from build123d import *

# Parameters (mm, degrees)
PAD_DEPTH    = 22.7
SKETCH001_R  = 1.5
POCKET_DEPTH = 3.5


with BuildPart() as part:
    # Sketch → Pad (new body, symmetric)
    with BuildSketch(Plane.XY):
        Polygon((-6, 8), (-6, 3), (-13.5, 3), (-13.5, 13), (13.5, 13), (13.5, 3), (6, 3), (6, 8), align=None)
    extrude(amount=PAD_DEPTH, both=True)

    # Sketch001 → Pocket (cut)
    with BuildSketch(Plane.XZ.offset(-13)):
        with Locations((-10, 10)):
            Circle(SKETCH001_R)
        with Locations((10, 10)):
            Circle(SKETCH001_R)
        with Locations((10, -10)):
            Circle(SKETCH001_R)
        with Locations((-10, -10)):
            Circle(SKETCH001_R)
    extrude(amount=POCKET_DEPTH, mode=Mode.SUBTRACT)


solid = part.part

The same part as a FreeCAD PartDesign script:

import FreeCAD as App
import Part
import Sketcher

V = App.Vector
Q = App.Units.Quantity

doc = App.newDocument("Part")
body = doc.addObject("PartDesign::Body", "Body")

sketch1 = body.newObject("Sketcher::SketchObject", "Sketch")
sketch1.AttachmentSupport = (doc.getObject("XY_Plane"), [""])
sketch1.MapMode = "FlatFace"
sketch1.addGeometry(Part.LineSegment(V(-6, 3, 0), V(-6, 8, 0)), False)
sketch1.addGeometry(Part.LineSegment(V(-6, 8, 0), V(6, 8, 0)), False)
sketch1.addGeometry(Part.LineSegment(V(6, 8, 0), V(6, 3, 0)), False)
sketch1.addGeometry(Part.LineSegment(V(6, 3, 0), V(13.5, 3, 0)), False)
sketch1.addGeometry(Part.LineSegment(V(13.5, 3, 0), V(13.5, 13, 0)), False)
sketch1.addGeometry(Part.LineSegment(V(13.5, 13, 0), V(-13.5, 13, 0)), False)
sketch1.addGeometry(Part.LineSegment(V(-13.5, 13, 0), V(-13.5, 3, 0)), False)
sketch1.addGeometry(Part.LineSegment(V(-13.5, 3, 0), V(-6, 3, 0)), False)
sketch1.addConstraint(Sketcher.Constraint("Coincident", 0, 2, 1, 1))
sketch1.addConstraint(Sketcher.Constraint("Coincident", 1, 2, 2, 1))
sketch1.addConstraint(Sketcher.Constraint("Coincident", 2, 2, 3, 1))
sketch1.addConstraint(Sketcher.Constraint("Coincident", 3, 2, 4, 1))
sketch1.addConstraint(Sketcher.Constraint("Coincident", 4, 2, 5, 1))
sketch1.addConstraint(Sketcher.Constraint("Coincident", 5, 2, 6, 1))
sketch1.addConstraint(Sketcher.Constraint("Coincident", 6, 2, 7, 1))
sketch1.addConstraint(Sketcher.Constraint("Coincident", 7, 2, 0, 1))
sketch1.addConstraint(Sketcher.Constraint("Vertical", 0))
sketch1.addConstraint(Sketcher.Constraint("Horizontal", 1))
sketch1.addConstraint(Sketcher.Constraint("Vertical", 2))
sketch1.addConstraint(Sketcher.Constraint("Horizontal", 3))
sketch1.addConstraint(Sketcher.Constraint("Vertical", 4))
sketch1.addConstraint(Sketcher.Constraint("Horizontal", 5))
sketch1.addConstraint(Sketcher.Constraint("Vertical", 6))
sketch1.addConstraint(Sketcher.Constraint("Horizontal", 7))
sketch1.addConstraint(Sketcher.Constraint("Symmetric", 3, 2, 6, 2, -2))
sketch1.addConstraint(Sketcher.Constraint("Equal", 3, 7))
sketch1.addConstraint(Sketcher.Constraint("DistanceX", 1, 1, 1, 2, Q("12 mm")))
sketch1.addConstraint(Sketcher.Constraint("DistanceX", 5, 2, 5, 1, Q("27 mm")))
sketch1.addConstraint(Sketcher.Constraint("DistanceY", 0, 1, 0, 2, Q("5 mm")))
sketch1.addConstraint(Sketcher.Constraint("DistanceY", 4, 1, 4, 2, Q("10 mm")))
sketch1.addConstraint(Sketcher.Constraint("DistanceY", -1, 1, 0, 2, Q("8 mm")))
pad1 = body.newObject("PartDesign::Pad", "Pad")
pad1.Profile = sketch1
pad1.Length = 45.4
pad1.Midplane = True

sketch2 = body.newObject("Sketcher::SketchObject", "Sketch001")
sketch2.AttachmentSupport = (doc.getObject("XZ_Plane"), [""])
sketch2.MapMode = "FlatFace"
sketch2.AttachmentOffset = App.Placement(V(0, 0, -13), App.Rotation())
sketch2.addGeometry(Part.Circle(V(-10, 10, 0), V(0, 0, 1), 1.5), False)
sketch2.addGeometry(Part.Circle(V(10, 10, 0), V(0, 0, 1), 1.5), False)
sketch2.addGeometry(Part.Circle(V(10, -10, 0), V(0, 0, 1), 1.5), False)
sketch2.addGeometry(Part.Circle(V(-10, -10, 0), V(0, 0, 1), 1.5), False)
sketch2.addConstraint(Sketcher.Constraint("Equal", 0, 1))
sketch2.addConstraint(Sketcher.Constraint("Equal", 1, 2))
sketch2.addConstraint(Sketcher.Constraint("Equal", 2, 3))
sketch2.addConstraint(Sketcher.Constraint("Symmetric", 0, 3, 2, 3, -1, 1))
sketch2.addConstraint(Sketcher.Constraint("Symmetric", 1, 3, 3, 3, -1, 1))
sketch2.addConstraint(Sketcher.Constraint("Symmetric", 0, 3, 1, 3, -2))
sketch2.addConstraint(Sketcher.Constraint("Diameter", 0, Q("3 mm")))
sketch2.addConstraint(Sketcher.Constraint("DistanceX", 0, 3, -1, 1, Q("10 mm")))
sketch2.addConstraint(Sketcher.Constraint("DistanceY", -1, 1, 0, 3, Q("10 mm")))
pocket1 = body.newObject("PartDesign::Pocket", "Pocket")
pocket1.Profile = sketch2
pocket1.Length = 3.5
pocket1.Reversed = True

doc.recompute()
